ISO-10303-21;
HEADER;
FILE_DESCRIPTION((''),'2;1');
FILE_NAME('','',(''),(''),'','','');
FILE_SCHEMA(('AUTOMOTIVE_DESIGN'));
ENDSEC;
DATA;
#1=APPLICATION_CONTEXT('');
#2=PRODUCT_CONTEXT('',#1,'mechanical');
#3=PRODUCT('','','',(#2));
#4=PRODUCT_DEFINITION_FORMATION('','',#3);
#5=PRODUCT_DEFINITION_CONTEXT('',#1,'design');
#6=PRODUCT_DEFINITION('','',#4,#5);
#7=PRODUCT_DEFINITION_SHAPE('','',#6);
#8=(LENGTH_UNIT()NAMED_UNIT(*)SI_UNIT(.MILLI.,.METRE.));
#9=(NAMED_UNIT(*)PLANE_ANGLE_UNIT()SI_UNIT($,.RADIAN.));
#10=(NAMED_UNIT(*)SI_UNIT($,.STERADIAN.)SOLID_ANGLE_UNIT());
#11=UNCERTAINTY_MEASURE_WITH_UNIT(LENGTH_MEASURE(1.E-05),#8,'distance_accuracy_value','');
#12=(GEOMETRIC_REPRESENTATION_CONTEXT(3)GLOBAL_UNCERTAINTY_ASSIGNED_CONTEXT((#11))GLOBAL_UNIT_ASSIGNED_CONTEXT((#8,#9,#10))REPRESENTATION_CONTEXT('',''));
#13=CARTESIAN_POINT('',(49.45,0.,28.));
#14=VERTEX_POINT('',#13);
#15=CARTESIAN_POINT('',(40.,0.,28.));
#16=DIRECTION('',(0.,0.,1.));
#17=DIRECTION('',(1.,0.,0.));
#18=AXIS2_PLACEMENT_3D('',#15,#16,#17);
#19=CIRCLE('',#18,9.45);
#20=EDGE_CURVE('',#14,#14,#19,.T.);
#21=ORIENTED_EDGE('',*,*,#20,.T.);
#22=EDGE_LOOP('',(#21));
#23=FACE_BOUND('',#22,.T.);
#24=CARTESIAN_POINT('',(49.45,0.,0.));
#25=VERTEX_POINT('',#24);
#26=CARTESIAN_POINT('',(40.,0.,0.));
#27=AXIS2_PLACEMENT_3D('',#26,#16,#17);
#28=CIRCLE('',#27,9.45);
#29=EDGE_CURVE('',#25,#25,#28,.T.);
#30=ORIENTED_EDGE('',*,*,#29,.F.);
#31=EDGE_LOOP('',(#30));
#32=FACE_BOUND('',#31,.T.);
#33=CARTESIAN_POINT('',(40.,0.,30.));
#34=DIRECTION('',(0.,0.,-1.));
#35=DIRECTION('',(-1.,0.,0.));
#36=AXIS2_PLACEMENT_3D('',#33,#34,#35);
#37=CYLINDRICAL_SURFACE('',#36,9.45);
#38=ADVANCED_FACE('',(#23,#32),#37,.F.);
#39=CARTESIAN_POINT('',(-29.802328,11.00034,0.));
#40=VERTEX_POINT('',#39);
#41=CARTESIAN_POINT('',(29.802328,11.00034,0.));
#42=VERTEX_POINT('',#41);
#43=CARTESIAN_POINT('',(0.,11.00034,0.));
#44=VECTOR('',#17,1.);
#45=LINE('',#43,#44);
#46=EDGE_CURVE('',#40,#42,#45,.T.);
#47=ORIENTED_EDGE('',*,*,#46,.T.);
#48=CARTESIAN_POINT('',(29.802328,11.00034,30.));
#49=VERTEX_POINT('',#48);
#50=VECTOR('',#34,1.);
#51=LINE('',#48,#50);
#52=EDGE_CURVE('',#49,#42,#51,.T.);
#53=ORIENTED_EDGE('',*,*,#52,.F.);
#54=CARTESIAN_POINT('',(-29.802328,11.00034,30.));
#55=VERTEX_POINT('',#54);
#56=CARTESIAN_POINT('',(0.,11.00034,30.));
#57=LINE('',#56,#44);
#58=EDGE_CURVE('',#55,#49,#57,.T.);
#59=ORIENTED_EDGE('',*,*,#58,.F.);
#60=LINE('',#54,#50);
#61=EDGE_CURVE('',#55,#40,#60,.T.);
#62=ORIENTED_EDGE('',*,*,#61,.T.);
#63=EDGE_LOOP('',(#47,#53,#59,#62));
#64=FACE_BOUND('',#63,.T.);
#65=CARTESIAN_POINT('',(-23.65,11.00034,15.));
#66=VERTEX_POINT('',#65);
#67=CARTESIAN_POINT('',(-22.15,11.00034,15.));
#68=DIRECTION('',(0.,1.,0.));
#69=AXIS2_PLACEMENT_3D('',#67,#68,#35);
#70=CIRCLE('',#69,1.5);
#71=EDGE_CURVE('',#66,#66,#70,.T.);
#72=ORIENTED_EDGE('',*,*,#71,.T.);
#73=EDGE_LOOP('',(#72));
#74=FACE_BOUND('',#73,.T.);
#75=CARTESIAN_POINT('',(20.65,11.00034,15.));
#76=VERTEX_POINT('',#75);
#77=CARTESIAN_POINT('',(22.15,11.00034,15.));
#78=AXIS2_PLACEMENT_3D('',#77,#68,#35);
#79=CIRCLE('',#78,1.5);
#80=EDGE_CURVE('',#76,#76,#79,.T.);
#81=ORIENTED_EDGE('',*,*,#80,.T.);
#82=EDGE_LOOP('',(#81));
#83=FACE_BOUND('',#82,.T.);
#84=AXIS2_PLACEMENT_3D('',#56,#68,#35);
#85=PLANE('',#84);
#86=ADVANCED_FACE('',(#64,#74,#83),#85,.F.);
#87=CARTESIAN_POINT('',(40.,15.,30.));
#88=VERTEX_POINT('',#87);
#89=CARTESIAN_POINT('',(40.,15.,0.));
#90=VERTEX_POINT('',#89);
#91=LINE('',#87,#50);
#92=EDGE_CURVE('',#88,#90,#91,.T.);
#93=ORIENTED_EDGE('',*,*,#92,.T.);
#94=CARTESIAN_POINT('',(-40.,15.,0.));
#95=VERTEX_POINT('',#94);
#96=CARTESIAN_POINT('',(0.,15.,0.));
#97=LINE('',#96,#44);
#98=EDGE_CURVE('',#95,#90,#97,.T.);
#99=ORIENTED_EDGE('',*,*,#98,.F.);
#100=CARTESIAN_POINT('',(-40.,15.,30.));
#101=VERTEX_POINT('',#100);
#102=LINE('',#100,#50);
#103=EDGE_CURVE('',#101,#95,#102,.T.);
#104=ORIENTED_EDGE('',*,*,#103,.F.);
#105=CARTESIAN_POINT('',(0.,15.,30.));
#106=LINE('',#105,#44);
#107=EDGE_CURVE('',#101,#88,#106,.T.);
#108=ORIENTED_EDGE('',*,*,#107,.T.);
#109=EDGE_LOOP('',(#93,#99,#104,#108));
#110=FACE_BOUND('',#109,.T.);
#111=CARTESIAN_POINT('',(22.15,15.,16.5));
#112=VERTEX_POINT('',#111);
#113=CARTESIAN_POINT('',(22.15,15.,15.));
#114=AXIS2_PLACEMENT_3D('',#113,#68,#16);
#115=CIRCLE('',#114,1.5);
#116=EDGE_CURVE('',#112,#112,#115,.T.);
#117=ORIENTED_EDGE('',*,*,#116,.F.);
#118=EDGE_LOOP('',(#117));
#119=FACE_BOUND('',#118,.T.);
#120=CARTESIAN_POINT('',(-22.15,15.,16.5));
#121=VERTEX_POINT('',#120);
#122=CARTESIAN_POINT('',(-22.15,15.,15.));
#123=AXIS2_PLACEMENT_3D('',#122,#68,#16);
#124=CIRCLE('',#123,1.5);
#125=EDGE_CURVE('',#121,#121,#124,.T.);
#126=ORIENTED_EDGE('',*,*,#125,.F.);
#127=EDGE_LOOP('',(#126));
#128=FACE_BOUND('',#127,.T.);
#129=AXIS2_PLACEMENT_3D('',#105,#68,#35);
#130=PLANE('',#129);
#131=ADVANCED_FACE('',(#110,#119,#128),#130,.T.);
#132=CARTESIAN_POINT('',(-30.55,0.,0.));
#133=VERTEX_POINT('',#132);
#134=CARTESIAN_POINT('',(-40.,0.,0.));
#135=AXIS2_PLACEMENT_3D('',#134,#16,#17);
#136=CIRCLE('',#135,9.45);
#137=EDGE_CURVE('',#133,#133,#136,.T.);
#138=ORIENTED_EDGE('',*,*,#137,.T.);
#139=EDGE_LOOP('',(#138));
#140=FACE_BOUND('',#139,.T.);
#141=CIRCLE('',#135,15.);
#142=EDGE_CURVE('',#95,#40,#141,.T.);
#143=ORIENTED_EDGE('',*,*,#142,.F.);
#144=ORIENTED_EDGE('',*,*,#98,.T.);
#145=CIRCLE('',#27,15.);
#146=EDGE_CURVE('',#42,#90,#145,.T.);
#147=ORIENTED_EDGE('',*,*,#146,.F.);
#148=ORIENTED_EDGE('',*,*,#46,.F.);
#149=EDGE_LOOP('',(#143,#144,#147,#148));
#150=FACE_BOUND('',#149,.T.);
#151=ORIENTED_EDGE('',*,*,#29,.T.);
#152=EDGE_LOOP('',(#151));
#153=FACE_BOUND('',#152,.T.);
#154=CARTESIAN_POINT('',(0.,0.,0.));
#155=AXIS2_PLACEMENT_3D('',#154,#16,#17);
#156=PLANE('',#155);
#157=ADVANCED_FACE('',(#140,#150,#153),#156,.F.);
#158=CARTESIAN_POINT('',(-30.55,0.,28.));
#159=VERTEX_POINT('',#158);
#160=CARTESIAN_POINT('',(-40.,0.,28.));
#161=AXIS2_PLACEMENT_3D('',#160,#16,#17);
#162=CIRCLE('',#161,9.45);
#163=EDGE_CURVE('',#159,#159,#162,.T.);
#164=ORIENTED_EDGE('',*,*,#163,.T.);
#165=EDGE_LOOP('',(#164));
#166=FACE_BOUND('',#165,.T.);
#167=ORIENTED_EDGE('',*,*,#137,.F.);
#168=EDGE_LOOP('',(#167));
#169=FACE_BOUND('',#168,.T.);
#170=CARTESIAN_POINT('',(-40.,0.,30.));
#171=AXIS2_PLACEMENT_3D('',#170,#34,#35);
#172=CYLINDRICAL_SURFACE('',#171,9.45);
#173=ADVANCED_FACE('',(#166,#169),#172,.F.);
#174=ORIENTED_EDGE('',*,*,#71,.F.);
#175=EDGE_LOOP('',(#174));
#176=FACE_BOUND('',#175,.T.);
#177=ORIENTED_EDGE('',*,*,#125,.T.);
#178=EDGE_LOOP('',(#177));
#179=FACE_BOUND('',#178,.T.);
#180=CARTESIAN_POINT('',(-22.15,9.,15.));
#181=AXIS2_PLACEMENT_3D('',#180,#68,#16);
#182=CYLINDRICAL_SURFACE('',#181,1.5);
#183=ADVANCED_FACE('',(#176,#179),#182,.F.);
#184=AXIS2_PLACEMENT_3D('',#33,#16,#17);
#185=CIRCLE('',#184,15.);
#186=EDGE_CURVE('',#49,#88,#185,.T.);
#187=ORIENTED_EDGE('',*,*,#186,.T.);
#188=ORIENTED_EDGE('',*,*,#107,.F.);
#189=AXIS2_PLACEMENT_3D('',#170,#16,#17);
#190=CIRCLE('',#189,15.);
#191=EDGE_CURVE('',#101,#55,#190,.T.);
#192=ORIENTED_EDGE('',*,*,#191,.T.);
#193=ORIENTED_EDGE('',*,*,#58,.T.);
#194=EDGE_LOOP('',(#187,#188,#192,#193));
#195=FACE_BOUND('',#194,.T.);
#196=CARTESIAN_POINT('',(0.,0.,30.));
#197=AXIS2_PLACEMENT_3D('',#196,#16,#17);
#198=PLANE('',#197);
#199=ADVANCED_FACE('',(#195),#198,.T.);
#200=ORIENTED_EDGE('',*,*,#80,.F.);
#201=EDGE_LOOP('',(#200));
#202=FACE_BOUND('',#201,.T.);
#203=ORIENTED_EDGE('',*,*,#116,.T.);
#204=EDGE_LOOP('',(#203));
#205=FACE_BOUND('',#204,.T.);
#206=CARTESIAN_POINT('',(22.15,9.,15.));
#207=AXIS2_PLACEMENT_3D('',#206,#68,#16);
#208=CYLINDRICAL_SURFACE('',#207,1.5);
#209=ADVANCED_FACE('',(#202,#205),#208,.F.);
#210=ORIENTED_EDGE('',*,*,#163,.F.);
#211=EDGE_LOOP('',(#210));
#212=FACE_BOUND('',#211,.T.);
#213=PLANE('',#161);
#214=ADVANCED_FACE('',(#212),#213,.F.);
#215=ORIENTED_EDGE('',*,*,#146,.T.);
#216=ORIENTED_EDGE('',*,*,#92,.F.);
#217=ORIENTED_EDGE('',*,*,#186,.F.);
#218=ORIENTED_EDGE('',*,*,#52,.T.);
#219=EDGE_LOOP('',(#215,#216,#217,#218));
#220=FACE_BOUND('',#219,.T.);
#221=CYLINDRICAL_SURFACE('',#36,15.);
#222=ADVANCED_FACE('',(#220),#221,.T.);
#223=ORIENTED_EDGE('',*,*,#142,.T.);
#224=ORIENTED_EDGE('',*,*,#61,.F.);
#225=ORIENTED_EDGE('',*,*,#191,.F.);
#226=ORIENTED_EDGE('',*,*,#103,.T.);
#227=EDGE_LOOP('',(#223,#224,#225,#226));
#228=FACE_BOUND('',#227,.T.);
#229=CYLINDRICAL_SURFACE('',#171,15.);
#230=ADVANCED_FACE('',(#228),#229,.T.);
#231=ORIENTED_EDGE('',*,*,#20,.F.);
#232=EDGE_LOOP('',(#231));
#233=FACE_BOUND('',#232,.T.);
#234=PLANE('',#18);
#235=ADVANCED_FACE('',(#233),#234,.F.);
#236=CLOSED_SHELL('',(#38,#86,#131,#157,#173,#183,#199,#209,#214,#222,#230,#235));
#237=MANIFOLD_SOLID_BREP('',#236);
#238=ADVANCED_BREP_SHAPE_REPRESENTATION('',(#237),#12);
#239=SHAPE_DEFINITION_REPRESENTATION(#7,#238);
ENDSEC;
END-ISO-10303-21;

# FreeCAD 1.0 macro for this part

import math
import FreeCAD as App
import Part
import Sketcher
Q = App.Units.Quantity

doc = App.newDocument("Part")
params = doc.addObject("Spreadsheet::Sheet", "Params")
for row, (alias, value) in enumerate([
    ("sketch1_radius", "15 mm"),
    ("sketch1_diameter", "18.9 mm"),
    ("sketch1_width", "80 mm"),
    ("pad1_length", "30 mm"),
    ("sketch2_diameter", "3 mm"),
    ("pocket1_length", "6 mm"),
    ("sketch3_diameter", "18.9 mm"),
    ("pad2_length", "2 mm"),
], start=1):
    params.set(f"A{row}", alias)
    params.set(f"B{row}", "=" + value)
    params.setAlias(f"B{row}", alias)

body = doc.addObject("PartDesign::Body", "Body")

# Sketch on XY plane
sketch1 = body.newObject("Sketcher::SketchObject", "Sketch")
sketch1.AttachmentSupport = (doc.getObject("XY_Plane"), [""])
sketch1.MapMode = "FlatFace"
sketch1.addGeometry(Part.LineSegment(App.Vector(40, 15, 0), App.Vector(-40, 15, 0)), False)
sketch1.addGeometry(Part.ArcOfCircle(Part.Circle(App.Vector(-40, 0, 0), App.Vector(0, 0, 1), 15), math.radians(90), math.radians(407)), False)
sketch1.addGeometry(Part.LineSegment(App.Vector(-30, 11, 0), App.Vector(30, 11, 0)), False)
sketch1.addGeometry(Part.ArcOfCircle(Part.Circle(App.Vector(40, 0, 0), App.Vector(0, 0, 1), 15), math.radians(133), math.radians(450)), False)
sketch1.addGeometry(Part.Circle(App.Vector(40, 0, 0), App.Vector(0, 0, 1), 9), False)
sketch1.addGeometry(Part.Circle(App.Vector(-40, 0, 0), App.Vector(0, 0, 1), 9), False)
sketch1.addConstraint(Sketcher.Constraint("Tangent", 0, 2, 1, 1))
sketch1.addConstraint(Sketcher.Constraint("Coincident", 1, 2, 2, 1))
sketch1.addConstraint(Sketcher.Constraint("Coincident", 2, 2, 3, 1))
sketch1.addConstraint(Sketcher.Constraint("Tangent", 3, 2, 0, 1))
sketch1.addConstraint(Sketcher.Constraint("Horizontal", 0))
sketch1.addConstraint(Sketcher.Constraint("Horizontal", 2))
sketch1.addConstraint(Sketcher.Constraint("Coincident", 4, 3, 3, 3))
sketch1.addConstraint(Sketcher.Constraint("Coincident", 5, 3, 1, 3))
sketch1.addConstraint(Sketcher.Constraint("Equal", 1, 3))
sketch1.addConstraint(Sketcher.Constraint("Equal", 4, 5))
sketch1.addConstraint(Sketcher.Constraint("Symmetric", 1, 3, 3, 3, -1, 1))
sketch1.addConstraint(Sketcher.Constraint("Radius", 1, Q("15 mm")))
sketch1.addConstraint(Sketcher.Constraint("Diameter", 4, Q("18.9 mm")))
sketch1.addConstraint(Sketcher.Constraint("DistanceX", 0, 2, 0, 1, Q("80 mm")))
sketch1.addConstraint(Sketcher.Constraint("DistanceX", 2, 1, 2, 2, Q("59.604655 mm")))
sketch1.setExpression("Constraints[11]", "Params.sketch1_radius")
sketch1.setExpression("Constraints[12]", "Params.sketch1_diameter")
sketch1.setExpression("Constraints[13]", "Params.sketch1_width")
pad1 = body.newObject("PartDesign::Pad", "Pad")
pad1.Profile = sketch1
pad1.setExpression("Length", "Params.pad1_length")

# Sketch on XZ plane
sketch2 = body.newObject("Sketcher::SketchObject", "Sketch001")
sketch2.AttachmentSupport = (doc.getObject("XZ_Plane"), [""])
sketch2.MapMode = "FlatFace"
sketch2.AttachmentOffset = App.Placement(App.Vector(0, 0, -15), App.Rotation())
sketch2.addGeometry(Part.Circle(App.Vector(-22.1, 15, 0), App.Vector(0, 0, 1), 1.5), False)
sketch2.addGeometry(Part.Circle(App.Vector(22.1, 15, 0), App.Vector(0, 0, 1), 1.5), False)
sketch2.addConstraint(Sketcher.Constraint("Equal", 0, 1))
sketch2.addConstraint(Sketcher.Constraint("Symmetric", 0, 3, 1, 3, -2))
sketch2.addConstraint(Sketcher.Constraint("Diameter", 0, Q("3 mm")))
sketch2.addConstraint(Sketcher.Constraint("DistanceY", -1, 1, 0, 3, Q("15 mm")))
sketch2.addConstraint(Sketcher.Constraint("DistanceX", 0, 3, 1, 3, Q("44.3 mm")))
sketch2.setExpression("Constraints[2]", "Params.sketch2_diameter")
pocket1 = body.newObject("PartDesign::Pocket", "Pocket")
pocket1.Profile = sketch2
pocket1.setExpression("Length", "Params.pocket1_length")
pocket1.Reversed = True

# Sketch on XY plane
sketch3 = body.newObject("Sketcher::SketchObject", "Sketch002")
sketch3.AttachmentSupport = (doc.getObject("XY_Plane"), [""])
sketch3.MapMode = "FlatFace"
sketch3.AttachmentOffset = App.Placement(App.Vector(0, 0, 28), App.Rotation())
sketch3.addGeometry(Part.Circle(App.Vector(-40, 0, 0), App.Vector(0, 0, 1), 9), False)
sketch3.addGeometry(Part.Circle(App.Vector(40, 0, 0), App.Vector(0, 0, 1), 9), False)
sketch3.addConstraint(Sketcher.Constraint("Equal", 0, 1))
sketch3.addConstraint(Sketcher.Constraint("Symmetric", 0, 3, 1, 3, -1, 1))
sketch3.addConstraint(Sketcher.Constraint("PointOnObject", 0, 3, -1))
sketch3.addConstraint(Sketcher.Constraint("Diameter", 0, Q("18.9 mm")))
sketch3.addConstraint(Sketcher.Constraint("DistanceX", 0, 3, -1, 1, Q("40 mm")))
sketch3.setExpression("Constraints[3]", "Params.sketch3_diameter")
pad2 = body.newObject("PartDesign::Pad", "Pad001")
pad2.Profile = sketch3
pad2.setExpression("Length", "Params.pad2_length")

doc.recompute()
